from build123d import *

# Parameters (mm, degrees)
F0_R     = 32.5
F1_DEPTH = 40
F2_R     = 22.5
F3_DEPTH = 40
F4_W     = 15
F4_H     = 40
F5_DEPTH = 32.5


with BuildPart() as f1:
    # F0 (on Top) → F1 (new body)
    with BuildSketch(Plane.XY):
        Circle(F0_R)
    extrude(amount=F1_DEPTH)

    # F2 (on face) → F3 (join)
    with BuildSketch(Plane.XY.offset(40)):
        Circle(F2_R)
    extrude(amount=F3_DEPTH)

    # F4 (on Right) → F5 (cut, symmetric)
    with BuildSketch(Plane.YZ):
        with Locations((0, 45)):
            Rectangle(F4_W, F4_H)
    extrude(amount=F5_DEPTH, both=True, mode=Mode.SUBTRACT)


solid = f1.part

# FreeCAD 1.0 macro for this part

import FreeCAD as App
import Part
import Sketcher
Q = App.Units.Quantity


def add_polygon(sketch, points):
    """Adds a closed chain of lines whose ends are joined by coincident constraints."""
    first, n = sketch.GeometryCount, len(points)
    for a, b in zip(points, points[1:] + points[:1]):
        sketch.addGeometry(Part.LineSegment(App.Vector(*a, 0), App.Vector(*b, 0)), False)
    for i in range(n):
        sketch.addConstraint(Sketcher.Constraint("Coincident", first + i, 2, first + (i + 1) % n, 1))

doc = App.newDocument("Part")
body = doc.addObject("PartDesign::Body", "Body")

# Sketch on XY plane
sketch1 = body.newObject("Sketcher::SketchObject", "Sketch")
sketch1.AttachmentSupport = (doc.getObject("XY_Plane"), [""])
sketch1.MapMode = "FlatFace"
sketch1.addGeometry(Part.Circle(App.Vector(0, 0, 0), App.Vector(0, 0, 1), 32), False)
sketch1.addConstraint([
    Sketcher.Constraint("Coincident", 0, 3, -1, 1),
    Sketcher.Constraint("Diameter", 0, Q("65 mm")),
])
pad1 = body.newObject("PartDesign::Pad", "Pad")
pad1.Profile = sketch1
pad1.Length = 40

# Sketch on XY plane
sketch2 = body.newObject("Sketcher::SketchObject", "Sketch001")
sketch2.AttachmentSupport = (doc.getObject("XY_Plane"), [""])
sketch2.MapMode = "FlatFace"
sketch2.AttachmentOffset = App.Placement(App.Vector(0, 0, 40), App.Rotation())
sketch2.addGeometry(Part.Circle(App.Vector(0, 0, 0), App.Vector(0, 0, 1), 22), False)
sketch2.addConstraint([
    Sketcher.Constraint("Coincident", 0, 3, -1, 1),
    Sketcher.Constraint("Diameter", 0, Q("45 mm")),
])
pad2 = body.newObject("PartDesign::Pad", "Pad001")
pad2.Profile = sketch2
pad2.Length = 40

# Sketch on YZ plane
sketch3 = body.newObject("Sketcher::SketchObject", "Sketch002")
sketch3.AttachmentSupport = (doc.getObject("YZ_Plane"), [""])
sketch3.MapMode = "FlatFace"
add_polygon(sketch3, [(-8, 65), (-8, 25), (8, 25), (8, 65)])  # lines 0-3
sketch3.addConstraint([
    Sketcher.Constraint("Vertical", 0),
    Sketcher.Constraint("Horizontal", 1),
    Sketcher.Constraint("Vertical", 2),
    Sketcher.Constraint("Horizontal", 3),
    Sketcher.Constraint("DistanceX", 1, 1, 1, 2, Q("15 mm")),
    Sketcher.Constraint("DistanceY", 0, 2, 0, 1, Q("40 mm")),
    Sketcher.Constraint("DistanceY", -1, 1, 0, 2, Q("25 mm")),
    Sketcher.Constraint("DistanceX", 0, 2, -1, 1, Q("7.5 mm")),
])
pocket1 = body.newObject("PartDesign::Pocket", "Pocket")
pocket1.Profile = sketch3
pocket1.Length = 65
pocket1.Midplane = True

doc.recompute()
